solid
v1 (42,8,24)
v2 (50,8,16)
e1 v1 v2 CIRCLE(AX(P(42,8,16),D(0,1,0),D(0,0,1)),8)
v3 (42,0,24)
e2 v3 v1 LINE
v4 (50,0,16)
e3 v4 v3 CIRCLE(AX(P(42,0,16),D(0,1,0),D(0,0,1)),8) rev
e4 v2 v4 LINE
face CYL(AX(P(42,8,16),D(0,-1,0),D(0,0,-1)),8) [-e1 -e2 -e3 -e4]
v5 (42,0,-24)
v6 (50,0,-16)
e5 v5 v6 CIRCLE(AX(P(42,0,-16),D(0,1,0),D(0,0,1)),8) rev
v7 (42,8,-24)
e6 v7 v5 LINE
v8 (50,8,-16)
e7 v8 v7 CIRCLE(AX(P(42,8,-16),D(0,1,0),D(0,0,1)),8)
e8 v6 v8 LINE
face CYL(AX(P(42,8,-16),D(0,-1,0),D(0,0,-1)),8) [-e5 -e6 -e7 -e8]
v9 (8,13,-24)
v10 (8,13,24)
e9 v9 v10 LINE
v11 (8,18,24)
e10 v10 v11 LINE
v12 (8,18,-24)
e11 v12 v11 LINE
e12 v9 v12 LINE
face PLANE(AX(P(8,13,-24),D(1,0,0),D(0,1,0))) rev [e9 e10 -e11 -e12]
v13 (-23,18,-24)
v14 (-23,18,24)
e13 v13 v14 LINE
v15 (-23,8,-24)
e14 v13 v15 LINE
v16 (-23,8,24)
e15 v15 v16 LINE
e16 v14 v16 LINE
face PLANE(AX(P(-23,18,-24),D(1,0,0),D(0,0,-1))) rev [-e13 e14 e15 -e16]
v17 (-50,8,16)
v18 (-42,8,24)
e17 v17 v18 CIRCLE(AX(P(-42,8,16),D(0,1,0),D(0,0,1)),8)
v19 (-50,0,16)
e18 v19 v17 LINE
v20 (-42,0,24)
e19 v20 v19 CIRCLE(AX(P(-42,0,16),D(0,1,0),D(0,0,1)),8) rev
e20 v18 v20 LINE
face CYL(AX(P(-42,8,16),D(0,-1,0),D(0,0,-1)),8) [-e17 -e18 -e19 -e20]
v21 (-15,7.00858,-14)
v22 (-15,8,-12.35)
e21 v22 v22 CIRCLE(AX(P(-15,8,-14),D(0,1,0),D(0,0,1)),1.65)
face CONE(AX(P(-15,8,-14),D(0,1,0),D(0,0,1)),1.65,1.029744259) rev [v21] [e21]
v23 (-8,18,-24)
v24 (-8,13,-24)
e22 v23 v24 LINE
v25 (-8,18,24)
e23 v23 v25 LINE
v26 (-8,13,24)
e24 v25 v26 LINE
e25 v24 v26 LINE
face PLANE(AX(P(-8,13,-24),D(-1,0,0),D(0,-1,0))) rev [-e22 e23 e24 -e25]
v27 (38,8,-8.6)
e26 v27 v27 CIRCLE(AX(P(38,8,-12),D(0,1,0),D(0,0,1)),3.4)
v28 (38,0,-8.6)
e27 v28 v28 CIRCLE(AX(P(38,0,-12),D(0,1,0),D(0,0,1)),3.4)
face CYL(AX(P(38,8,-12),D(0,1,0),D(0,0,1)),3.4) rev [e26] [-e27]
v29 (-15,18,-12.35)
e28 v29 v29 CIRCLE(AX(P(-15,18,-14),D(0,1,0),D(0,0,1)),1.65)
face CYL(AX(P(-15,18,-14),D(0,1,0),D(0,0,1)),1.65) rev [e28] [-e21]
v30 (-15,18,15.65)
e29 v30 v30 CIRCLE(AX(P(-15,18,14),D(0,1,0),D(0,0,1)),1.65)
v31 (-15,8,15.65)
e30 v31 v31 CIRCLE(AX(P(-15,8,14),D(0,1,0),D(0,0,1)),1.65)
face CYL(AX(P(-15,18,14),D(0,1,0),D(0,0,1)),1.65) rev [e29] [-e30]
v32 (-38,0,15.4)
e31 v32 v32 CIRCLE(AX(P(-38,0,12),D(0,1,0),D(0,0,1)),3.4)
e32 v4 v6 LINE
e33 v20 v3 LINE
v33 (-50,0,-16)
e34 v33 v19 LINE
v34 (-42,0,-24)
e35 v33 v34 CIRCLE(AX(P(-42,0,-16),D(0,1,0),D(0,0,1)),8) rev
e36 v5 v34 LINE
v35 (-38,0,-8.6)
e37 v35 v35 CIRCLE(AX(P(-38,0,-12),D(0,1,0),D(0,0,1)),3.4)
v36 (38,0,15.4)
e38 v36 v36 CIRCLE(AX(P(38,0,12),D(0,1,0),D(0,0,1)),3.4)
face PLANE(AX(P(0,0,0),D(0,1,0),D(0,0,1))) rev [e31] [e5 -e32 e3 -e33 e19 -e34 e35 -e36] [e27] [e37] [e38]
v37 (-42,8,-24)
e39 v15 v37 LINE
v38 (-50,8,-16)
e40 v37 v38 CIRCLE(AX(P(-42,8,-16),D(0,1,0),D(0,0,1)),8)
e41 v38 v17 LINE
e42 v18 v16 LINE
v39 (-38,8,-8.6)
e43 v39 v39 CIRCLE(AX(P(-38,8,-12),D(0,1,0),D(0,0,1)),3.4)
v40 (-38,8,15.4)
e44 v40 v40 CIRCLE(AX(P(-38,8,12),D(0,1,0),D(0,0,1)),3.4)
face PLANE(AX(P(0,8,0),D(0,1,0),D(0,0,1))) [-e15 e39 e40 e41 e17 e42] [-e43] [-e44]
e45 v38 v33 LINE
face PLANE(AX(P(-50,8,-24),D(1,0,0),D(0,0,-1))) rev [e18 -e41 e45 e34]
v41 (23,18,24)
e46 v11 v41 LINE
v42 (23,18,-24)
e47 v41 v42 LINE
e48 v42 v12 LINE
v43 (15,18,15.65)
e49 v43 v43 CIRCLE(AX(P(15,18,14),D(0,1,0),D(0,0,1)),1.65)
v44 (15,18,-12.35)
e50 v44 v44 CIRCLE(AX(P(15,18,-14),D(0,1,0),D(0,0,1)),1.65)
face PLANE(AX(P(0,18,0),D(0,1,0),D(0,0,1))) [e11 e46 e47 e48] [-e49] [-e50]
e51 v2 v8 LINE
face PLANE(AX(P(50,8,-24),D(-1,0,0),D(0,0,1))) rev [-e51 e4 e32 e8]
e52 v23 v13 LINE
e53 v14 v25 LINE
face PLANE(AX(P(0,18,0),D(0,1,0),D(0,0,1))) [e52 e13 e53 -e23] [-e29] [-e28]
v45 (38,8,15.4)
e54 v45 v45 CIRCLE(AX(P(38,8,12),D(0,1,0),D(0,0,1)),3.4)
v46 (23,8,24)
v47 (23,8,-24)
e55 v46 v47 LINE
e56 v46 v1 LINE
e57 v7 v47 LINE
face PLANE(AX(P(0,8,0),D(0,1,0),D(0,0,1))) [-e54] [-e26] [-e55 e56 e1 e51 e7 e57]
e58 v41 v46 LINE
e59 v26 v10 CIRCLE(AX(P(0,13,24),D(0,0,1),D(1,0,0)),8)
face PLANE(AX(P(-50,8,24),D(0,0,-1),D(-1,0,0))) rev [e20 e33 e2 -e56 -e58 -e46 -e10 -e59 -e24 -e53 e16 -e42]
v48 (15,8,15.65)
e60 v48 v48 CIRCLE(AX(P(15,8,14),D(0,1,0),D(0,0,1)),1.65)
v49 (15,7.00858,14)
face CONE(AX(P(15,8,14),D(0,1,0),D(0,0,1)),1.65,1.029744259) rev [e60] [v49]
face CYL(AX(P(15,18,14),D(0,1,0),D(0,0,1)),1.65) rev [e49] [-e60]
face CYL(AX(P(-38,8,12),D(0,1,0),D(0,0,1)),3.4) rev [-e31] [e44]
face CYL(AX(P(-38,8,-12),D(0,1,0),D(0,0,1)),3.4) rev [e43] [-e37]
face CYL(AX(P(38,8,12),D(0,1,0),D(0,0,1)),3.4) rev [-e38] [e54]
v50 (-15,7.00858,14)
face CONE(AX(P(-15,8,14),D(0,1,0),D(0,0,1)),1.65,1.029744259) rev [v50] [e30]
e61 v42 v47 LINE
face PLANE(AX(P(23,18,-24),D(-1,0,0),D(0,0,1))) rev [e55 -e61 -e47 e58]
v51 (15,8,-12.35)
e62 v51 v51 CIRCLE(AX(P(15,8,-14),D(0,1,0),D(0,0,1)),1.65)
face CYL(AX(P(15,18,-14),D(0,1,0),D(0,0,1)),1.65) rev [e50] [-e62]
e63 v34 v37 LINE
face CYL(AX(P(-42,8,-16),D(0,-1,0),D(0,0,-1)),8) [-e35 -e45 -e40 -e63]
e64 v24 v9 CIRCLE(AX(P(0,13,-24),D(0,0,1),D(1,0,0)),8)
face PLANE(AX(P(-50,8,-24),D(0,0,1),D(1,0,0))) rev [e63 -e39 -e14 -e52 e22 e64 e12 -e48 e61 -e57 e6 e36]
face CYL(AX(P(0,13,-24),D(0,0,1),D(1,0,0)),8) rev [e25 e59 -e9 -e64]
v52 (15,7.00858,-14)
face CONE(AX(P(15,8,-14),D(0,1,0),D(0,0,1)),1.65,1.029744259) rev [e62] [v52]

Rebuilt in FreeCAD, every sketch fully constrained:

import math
import FreeCAD as App
import Part
import Sketcher

V = App.Vector
Q = App.Units.Quantity


def edges_at(feature, points):
    """Names of the edges that pass closest to the given points."""
    edges = feature.Shape.Edges
    near = lambda p: min(range(len(edges)), key=lambda i: edges[i].distToShape(Part.Vertex(*p))[0])
    return sorted({f"Edge{near(p) + 1}" for p in points})


def add_polygon(sketch, points):
    """Adds a closed chain of lines whose ends are joined by coincident constraints."""
    first, n = sketch.GeometryCount, len(points)
    for a, b in zip(points, points[1:] + points[:1]):
        sketch.addGeometry(Part.LineSegment(App.Vector(*a, 0), App.Vector(*b, 0)), False)
    for i in range(n):
        sketch.addConstraint(Sketcher.Constraint("Coincident", first + i, 2, first + (i + 1) % n, 1))

doc = App.newDocument("Part")
body = doc.addObject("PartDesign::Body", "Body")

# Sketch on XZ plane
sketch1 = body.newObject("Sketcher::SketchObject", "Sketch")
sketch1.AttachmentSupport = (doc.getObject("XZ_Plane"), [""])
sketch1.MapMode = "FlatFace"
add_polygon(sketch1, [(-50, -24), (-50, 24), (50, 24), (50, -24)])  # lines 0-3
sketch1.addConstraint([
    Sketcher.Constraint("Vertical", 0),
    Sketcher.Constraint("Horizontal", 1),
    Sketcher.Constraint("Vertical", 2),
    Sketcher.Constraint("Horizontal", 3),
    Sketcher.Constraint("Symmetric", 0, 2, 2, 2, -1, 1),
    Sketcher.Constraint("DistanceX", 1, 1, 1, 2, Q("100 mm")),
    Sketcher.Constraint("DistanceY", 0, 1, 0, 2, Q("48 mm")),
])
pad1 = body.newObject("PartDesign::Pad", "Pad")
pad1.Profile = sketch1
pad1.Length = 8
pad1.Reversed = True

# Sketch on XZ plane
sketch2 = body.newObject("Sketcher::SketchObject", "Sketch001")
sketch2.AttachmentSupport = (doc.getObject("XZ_Plane"), [""])
sketch2.MapMode = "FlatFace"
sketch2.AttachmentOffset = App.Placement(V(0, 0, -8), App.Rotation())
add_polygon(sketch2, [(-23, -24), (-23, 24), (23, 24), (23, -24)])  # lines 0-3
sketch2.addConstraint([
    Sketcher.Constraint("Vertical", 0),
    Sketcher.Constraint("Horizontal", 1),
    Sketcher.Constraint("Vertical", 2),
    Sketcher.Constraint("Horizontal", 3),
    Sketcher.Constraint("Symmetric", 0, 2, 2, 2, -1, 1),
    Sketcher.Constraint("DistanceX", 1, 1, 1, 2, Q("46 mm")),
    Sketcher.Constraint("DistanceY", 0, 1, 0, 2, Q("48 mm")),
])
pad2 = body.newObject("PartDesign::Pad", "Pad001")
pad2.Profile = sketch2
pad2.Length = 10
pad2.Reversed = True

# Sketch on XY plane
sketch3 = body.newObject("Sketcher::SketchObject", "Sketch002")
sketch3.AttachmentSupport = (doc.getObject("XY_Plane"), [""])
sketch3.MapMode = "FlatFace"
sketch3.AttachmentOffset = App.Placement(V(0, 0, 24), App.Rotation())
sketch3.addGeometry([
    Part.LineSegment(V(-8, 18, 0), V(-8, 13, 0)),
    Part.ArcOfCircle(Part.Circle(V(0, 13, 0), V(0, 0, 1), 8), math.radians(180), math.radians(360)),
    Part.LineSegment(V(8, 13, 0), V(8, 18, 0)),
    Part.LineSegment(V(8, 18, 0), V(-8, 18, 0)),
], False)
sketch3.addConstraint([
    Sketcher.Constraint("Tangent", 0, 2, 1, 1),
    Sketcher.Constraint("Tangent", 1, 2, 2, 1),
    Sketcher.Constraint("Coincident", 2, 2, 3, 1),
    Sketcher.Constraint("Coincident", 3, 2, 0, 1),
    Sketcher.Constraint("Vertical", 0),
    Sketcher.Constraint("Vertical", 2),
    Sketcher.Constraint("Horizontal", 3),
    Sketcher.Constraint("PointOnObject", 1, 3, -2),
    Sketcher.Constraint("Radius", 1, Q("8 mm")),
    Sketcher.Constraint("DistanceY", 0, 2, 0, 1, Q("5 mm")),
    Sketcher.Constraint("DistanceY", -1, 1, 1, 3, Q("13 mm")),
])
pocket1 = body.newObject("PartDesign::Pocket", "Pocket")
pocket1.Profile = sketch3
pocket1.Type = "ThroughAll"
doc.recompute()

fillet = body.newObject("PartDesign::Fillet", "Fillet")
fillet.Base = (pocket1, edges_at(pocket1, [
    (50, 4, 24),
    (-50, 4, 24),
    (-50, 4, -24),
    (50, 4, -24),
]))
fillet.Radius = 8

# Sketch on XZ plane
sketch4 = body.newObject("Sketcher::SketchObject", "Sketch003")
sketch4.AttachmentSupport = (doc.getObject("XZ_Plane"), [""])
sketch4.MapMode = "FlatFace"
sketch4.AttachmentOffset = App.Placement(V(0, 0, -18), App.Rotation())
sketch4.addGeometry([
    Part.Circle(V(-15, -14, 0), V(0, 0, 1), 1.65),
    Part.Circle(V(-15, 14, 0), V(0, 0, 1), 1.65),
    Part.Circle(V(15, 14, 0), V(0, 0, 1), 1.65),
    Part.Circle(V(15, -14, 0), V(0, 0, 1), 1.65),
], False)
sketch4.addConstraint([
    Sketcher.Constraint("Equal", 0, 1),
    Sketcher.Constraint("Equal", 1, 2),
    Sketcher.Constraint("Equal", 2, 3),
    Sketcher.Constraint("Symmetric", 0, 3, 2, 3, -1, 1),
    Sketcher.Constraint("Symmetric", 1, 3, 3, 3, -1, 1),
    Sketcher.Constraint("Symmetric", 1, 3, 2, 3, -2),
    Sketcher.Constraint("Diameter", 0, Q("3.3 mm")),
    Sketcher.Constraint("DistanceX", 0, 3, -1, 1, Q("15 mm")),
    Sketcher.Constraint("DistanceY", 0, 3, -1, 1, Q("14 mm")),
])
doc.recompute()
hole = body.newObject("PartDesign::Hole", "Hole")
hole.Profile = sketch4
hole.ThreadType = "None"
hole.Diameter = 3.3
hole.DepthType = "Dimension"
hole.Depth = 10
hole.DrillPoint = "Angled"
hole.DrillPointAngle = 118
hole.Reversed = True

# Sketch on XZ plane
sketch5 = body.newObject("Sketcher::SketchObject", "Sketch004")
sketch5.AttachmentSupport = (doc.getObject("XZ_Plane"), [""])
sketch5.MapMode = "FlatFace"
sketch5.AttachmentOffset = App.Placement(V(0, 0, -8), App.Rotation())
sketch5.addGeometry([
    Part.Circle(V(-38, -12, 0), V(0, 0, 1), 3.4),
    Part.Circle(V(-38, 12, 0), V(0, 0, 1), 3.4),
    Part.Circle(V(38, 12, 0), V(0, 0, 1), 3.4),
    Part.Circle(V(38, -12, 0), V(0, 0, 1), 3.4),
], False)
sketch5.addConstraint([
    Sketcher.Constraint("Equal", 0, 1),
    Sketcher.Constraint("Equal", 1, 2),
    Sketcher.Constraint("Equal", 2, 3),
    Sketcher.Constraint("Symmetric", 0, 3, 2, 3, -1, 1),
    Sketcher.Constraint("Symmetric", 1, 3, 3, 3, -1, 1),
    Sketcher.Constraint("Symmetric", 1, 3, 2, 3, -2),
    Sketcher.Constraint("Diameter", 0, Q("6.8 mm")),
    Sketcher.Constraint("DistanceX", 0, 3, -1, 1, Q("38 mm")),
    Sketcher.Constraint("DistanceY", 0, 3, -1, 1, Q("12 mm")),
])
doc.recompute()
hole2 = body.newObject("PartDesign::Hole", "Hole001")
hole2.Profile = sketch5
hole2.ThreadType = "None"
hole2.Diameter = 6.8
hole2.DepthType = "ThroughAll"
hole2.Reversed = True

doc.recompute()
